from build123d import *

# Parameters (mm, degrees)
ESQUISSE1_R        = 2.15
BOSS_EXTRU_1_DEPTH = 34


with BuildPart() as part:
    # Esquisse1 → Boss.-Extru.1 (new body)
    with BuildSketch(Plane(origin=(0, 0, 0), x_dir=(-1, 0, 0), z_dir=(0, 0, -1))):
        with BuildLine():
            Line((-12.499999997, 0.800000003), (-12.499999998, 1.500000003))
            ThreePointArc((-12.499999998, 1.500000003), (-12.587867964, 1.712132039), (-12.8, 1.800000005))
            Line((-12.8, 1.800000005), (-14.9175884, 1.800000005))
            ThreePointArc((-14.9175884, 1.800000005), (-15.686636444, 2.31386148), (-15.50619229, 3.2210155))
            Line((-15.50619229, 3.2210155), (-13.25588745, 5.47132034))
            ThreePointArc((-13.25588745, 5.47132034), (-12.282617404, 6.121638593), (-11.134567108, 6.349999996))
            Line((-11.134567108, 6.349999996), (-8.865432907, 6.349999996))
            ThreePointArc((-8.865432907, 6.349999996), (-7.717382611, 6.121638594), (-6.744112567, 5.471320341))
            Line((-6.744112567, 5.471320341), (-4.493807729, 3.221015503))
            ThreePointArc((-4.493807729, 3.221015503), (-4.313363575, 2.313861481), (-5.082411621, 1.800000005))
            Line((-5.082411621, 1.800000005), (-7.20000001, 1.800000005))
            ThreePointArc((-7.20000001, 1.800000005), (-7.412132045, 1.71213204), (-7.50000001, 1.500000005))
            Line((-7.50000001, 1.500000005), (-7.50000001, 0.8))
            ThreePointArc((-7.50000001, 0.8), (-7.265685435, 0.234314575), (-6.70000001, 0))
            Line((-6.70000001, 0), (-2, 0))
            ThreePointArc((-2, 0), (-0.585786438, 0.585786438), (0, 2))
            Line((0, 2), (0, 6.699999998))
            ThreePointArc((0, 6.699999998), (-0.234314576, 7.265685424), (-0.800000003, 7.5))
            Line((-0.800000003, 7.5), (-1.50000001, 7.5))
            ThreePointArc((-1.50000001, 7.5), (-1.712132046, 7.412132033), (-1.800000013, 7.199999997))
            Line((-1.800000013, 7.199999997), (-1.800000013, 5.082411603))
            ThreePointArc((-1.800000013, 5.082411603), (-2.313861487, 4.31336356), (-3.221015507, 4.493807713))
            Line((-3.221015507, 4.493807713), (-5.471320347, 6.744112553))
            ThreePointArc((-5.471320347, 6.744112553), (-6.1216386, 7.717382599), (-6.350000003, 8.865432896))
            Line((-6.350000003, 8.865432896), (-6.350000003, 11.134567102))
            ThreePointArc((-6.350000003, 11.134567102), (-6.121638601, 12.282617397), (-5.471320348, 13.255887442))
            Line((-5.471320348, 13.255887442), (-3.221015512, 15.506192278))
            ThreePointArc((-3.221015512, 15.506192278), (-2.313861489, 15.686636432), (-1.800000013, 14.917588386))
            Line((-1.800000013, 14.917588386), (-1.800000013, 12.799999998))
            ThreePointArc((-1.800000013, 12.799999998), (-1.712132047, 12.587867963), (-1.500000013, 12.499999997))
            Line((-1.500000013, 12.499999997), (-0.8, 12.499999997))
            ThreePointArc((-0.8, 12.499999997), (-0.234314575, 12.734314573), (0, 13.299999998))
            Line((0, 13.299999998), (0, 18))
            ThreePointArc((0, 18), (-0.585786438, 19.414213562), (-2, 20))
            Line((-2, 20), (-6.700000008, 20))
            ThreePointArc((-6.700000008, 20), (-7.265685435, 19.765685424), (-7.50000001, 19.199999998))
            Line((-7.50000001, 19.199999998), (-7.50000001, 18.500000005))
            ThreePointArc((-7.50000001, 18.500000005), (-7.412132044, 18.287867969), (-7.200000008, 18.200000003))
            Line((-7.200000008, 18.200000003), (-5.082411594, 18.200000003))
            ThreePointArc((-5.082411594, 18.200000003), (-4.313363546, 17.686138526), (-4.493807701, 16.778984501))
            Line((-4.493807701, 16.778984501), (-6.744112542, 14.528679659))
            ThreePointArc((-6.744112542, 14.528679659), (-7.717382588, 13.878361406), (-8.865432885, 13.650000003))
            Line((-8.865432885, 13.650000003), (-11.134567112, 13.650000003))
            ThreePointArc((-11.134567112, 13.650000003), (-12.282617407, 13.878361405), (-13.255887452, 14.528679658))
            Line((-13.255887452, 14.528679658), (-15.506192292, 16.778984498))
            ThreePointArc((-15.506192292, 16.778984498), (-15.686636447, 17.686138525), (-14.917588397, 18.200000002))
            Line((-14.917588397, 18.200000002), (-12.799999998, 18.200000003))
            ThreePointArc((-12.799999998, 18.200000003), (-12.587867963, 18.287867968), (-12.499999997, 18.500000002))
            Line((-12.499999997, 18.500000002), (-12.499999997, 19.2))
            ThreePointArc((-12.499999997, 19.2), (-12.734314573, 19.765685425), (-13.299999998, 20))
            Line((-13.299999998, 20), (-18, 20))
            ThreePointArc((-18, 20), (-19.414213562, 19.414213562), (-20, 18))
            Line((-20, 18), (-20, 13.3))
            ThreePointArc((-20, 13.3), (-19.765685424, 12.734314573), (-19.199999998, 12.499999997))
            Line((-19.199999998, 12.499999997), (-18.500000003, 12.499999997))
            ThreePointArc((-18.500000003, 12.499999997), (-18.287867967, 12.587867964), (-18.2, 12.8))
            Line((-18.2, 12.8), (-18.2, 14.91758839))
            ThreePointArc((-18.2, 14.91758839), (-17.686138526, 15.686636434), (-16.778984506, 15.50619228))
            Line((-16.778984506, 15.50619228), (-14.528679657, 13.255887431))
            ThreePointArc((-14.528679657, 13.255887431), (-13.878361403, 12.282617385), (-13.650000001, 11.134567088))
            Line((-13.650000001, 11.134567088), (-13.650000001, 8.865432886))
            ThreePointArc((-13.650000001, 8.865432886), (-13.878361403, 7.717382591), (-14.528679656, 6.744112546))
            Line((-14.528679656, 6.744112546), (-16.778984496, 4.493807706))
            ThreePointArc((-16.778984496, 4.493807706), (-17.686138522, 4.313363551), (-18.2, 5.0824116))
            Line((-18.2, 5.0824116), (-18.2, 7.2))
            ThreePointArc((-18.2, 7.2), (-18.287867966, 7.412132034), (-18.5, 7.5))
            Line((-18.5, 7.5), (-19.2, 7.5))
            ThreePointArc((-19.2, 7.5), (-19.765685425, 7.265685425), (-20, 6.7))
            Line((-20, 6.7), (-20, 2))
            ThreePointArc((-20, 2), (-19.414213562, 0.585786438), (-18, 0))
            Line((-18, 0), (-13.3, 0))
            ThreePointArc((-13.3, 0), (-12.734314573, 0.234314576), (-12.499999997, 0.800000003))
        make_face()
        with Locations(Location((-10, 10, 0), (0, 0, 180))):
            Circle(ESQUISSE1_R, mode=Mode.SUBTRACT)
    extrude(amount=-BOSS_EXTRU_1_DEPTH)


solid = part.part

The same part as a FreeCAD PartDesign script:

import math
import FreeCAD as App
import Part
import Sketcher
Q = App.Units.Quantity

doc = App.newDocument("Part")
params = doc.addObject("Spreadsheet::Sheet", "Params")
for row, (alias, value) in enumerate([
    ("sketch1_radius", "3 mm"),
    ("sketch1_radius2", "2 mm"),
    ("sketch1_diameter", "4.3 mm"),
    ("sketch1_radius3", "0.3 mm"),
    ("sketch1_radius4", "0.8 mm"),
    ("pad1_length", "34 mm"),
], start=1):
    params.set(f"A{row}", alias)
    params.set(f"B{row}", "=" + value)
    params.setAlias(f"B{row}", alias)

body = doc.addObject("PartDesign::Body", "Body")

# Sketch on XY plane
sketch1 = body.newObject("Sketcher::SketchObject", "Sketch")
sketch1.AttachmentSupport = (doc.getObject("XY_Plane"), [""])
sketch1.MapMode = "FlatFace"
sketch1.addGeometry([
    Part.LineSegment(App.Vector(12.5, 0.8, 0), App.Vector(12.5, 1.5, 0)),  # 0
    Part.ArcOfCircle(Part.Circle(App.Vector(12.8, 1.5, 0), App.Vector(0, 0, 1), 0.3), math.radians(90), math.radians(180)),  # 1
    Part.LineSegment(App.Vector(12.8, 1.8, 0), App.Vector(14.92, 1.8, 0)),  # 2
    Part.ArcOfCircle(Part.Circle(App.Vector(14.92, 2.63, 0), App.Vector(0, 0, 1), 0.83), math.radians(-90), math.radians(45)),  # 3
    Part.LineSegment(App.Vector(15.51, 3.22, 0), App.Vector(13.26, 5.47, 0)),  # 4
    Part.ArcOfCircle(Part.Circle(App.Vector(11.13, 3.35, 0), App.Vector(0, 0, 1), 3), math.radians(45), math.radians(90)),  # 5
    Part.LineSegment(App.Vector(11.13, 6.35, 0), App.Vector(8.87, 6.35, 0)),  # 6
    Part.ArcOfCircle(Part.Circle(App.Vector(8.87, 3.35, 0), App.Vector(0, 0, 1), 3), math.radians(90), math.radians(135)),  # 7
    Part.LineSegment(App.Vector(6.74, 5.47, 0), App.Vector(4.49, 3.22, 0)),  # 8
    Part.ArcOfCircle(Part.Circle(App.Vector(5.08, 2.63, 0), App.Vector(0, 0, 1), 0.83), math.radians(135), math.radians(270)),  # 9
    Part.LineSegment(App.Vector(5.08, 1.8, 0), App.Vector(7.2, 1.8, 0)),  # 10
    Part.ArcOfCircle(Part.Circle(App.Vector(7.2, 1.5, 0), App.Vector(0, 0, 1), 0.3), math.radians(0), math.radians(90)),  # 11
    Part.LineSegment(App.Vector(7.5, 1.5, 0), App.Vector(7.5, 0.8, 0)),  # 12
    Part.ArcOfCircle(Part.Circle(App.Vector(6.7, 0.8, 0), App.Vector(0, 0, 1), 0.8), math.radians(-90), math.radians(0)),  # 13
    Part.LineSegment(App.Vector(6.7, 0, 0), App.Vector(2, 0, 0)),  # 14
    Part.ArcOfCircle(Part.Circle(App.Vector(2, 2, 0), App.Vector(0, 0, 1), 2), math.radians(-180), math.radians(-90)),  # 15
    Part.LineSegment(App.Vector(0, 2, 0), App.Vector(0, 6.7, 0)),  # 16
    Part.ArcOfCircle(Part.Circle(App.Vector(0.8, 6.7, 0), App.Vector(0, 0, 1), 0.8), math.radians(90), math.radians(180)),  # 17
    Part.LineSegment(App.Vector(0.8, 7.5, 0), App.Vector(1.5, 7.5, 0)),  # 18
    Part.ArcOfCircle(Part.Circle(App.Vector(1.5, 7.2, 0), App.Vector(0, 0, 1), 0.3), math.radians(0), math.radians(90)),  # 19
    Part.LineSegment(App.Vector(1.8, 7.2, 0), App.Vector(1.8, 5.08, 0)),  # 20
    Part.ArcOfCircle(Part.Circle(App.Vector(2.63, 5.08, 0), App.Vector(0, 0, 1), 0.83), math.radians(-180), math.radians(-45)),  # 21
    Part.LineSegment(App.Vector(3.22, 4.49, 0), App.Vector(5.47, 6.74, 0)),  # 22
    Part.ArcOfCircle(Part.Circle(App.Vector(3.35, 8.87, 0), App.Vector(0, 0, 1), 3), math.radians(-45), math.radians(0)),  # 23
    Part.LineSegment(App.Vector(6.35, 8.87, 0), App.Vector(6.35, 11.13, 0)),  # 24
    Part.ArcOfCircle(Part.Circle(App.Vector(3.35, 11.13, 0), App.Vector(0, 0, 1), 3), math.radians(0), math.radians(45)),  # 25
    Part.LineSegment(App.Vector(5.47, 13.26, 0), App.Vector(3.22, 15.51, 0)),  # 26
    Part.ArcOfCircle(Part.Circle(App.Vector(2.63, 14.92, 0), App.Vector(0, 0, 1), 0.83), math.radians(45), math.radians(180)),  # 27
    Part.LineSegment(App.Vector(1.8, 14.92, 0), App.Vector(1.8, 12.8, 0)),  # 28
    Part.ArcOfCircle(Part.Circle(App.Vector(1.5, 12.8, 0), App.Vector(0, 0, 1), 0.3), math.radians(-90), math.radians(0)),  # 29
    Part.LineSegment(App.Vector(1.5, 12.5, 0), App.Vector(0.8, 12.5, 0)),  # 30
    Part.ArcOfCircle(Part.Circle(App.Vector(0.8, 13.3, 0), App.Vector(0, 0, 1), 0.8), math.radians(-180), math.radians(-90)),  # 31
    Part.LineSegment(App.Vector(0, 13.3, 0), App.Vector(0, 18, 0)),  # 32
    Part.ArcOfCircle(Part.Circle(App.Vector(2, 18, 0), App.Vector(0, 0, 1), 2), math.radians(90), math.radians(180)),  # 33
    Part.LineSegment(App.Vector(2, 20, 0), App.Vector(6.7, 20, 0)),  # 34
    Part.ArcOfCircle(Part.Circle(App.Vector(6.7, 19.2, 0), App.Vector(0, 0, 1), 0.8), math.radians(0), math.radians(90)),  # 35
    Part.LineSegment(App.Vector(7.5, 19.2, 0), App.Vector(7.5, 18.5, 0)),  # 36
    Part.ArcOfCircle(Part.Circle(App.Vector(7.2, 18.5, 0), App.Vector(0, 0, 1), 0.3), math.radians(-90), math.radians(0)),  # 37
    Part.LineSegment(App.Vector(7.2, 18.2, 0), App.Vector(5.08, 18.2, 0)),  # 38
    Part.ArcOfCircle(Part.Circle(App.Vector(5.08, 17.37, 0), App.Vector(0, 0, 1), 0.83), math.radians(90), math.radians(225)),  # 39
    Part.LineSegment(App.Vector(4.49, 16.78, 0), App.Vector(6.74, 14.53, 0)),  # 40
    Part.ArcOfCircle(Part.Circle(App.Vector(8.87, 16.65, 0), App.Vector(0, 0, 1), 3), math.radians(-135), math.radians(-90)),  # 41
    Part.LineSegment(App.Vector(8.87, 13.65, 0), App.Vector(11.13, 13.65, 0)),  # 42
    Part.ArcOfCircle(Part.Circle(App.Vector(11.13, 16.65, 0), App.Vector(0, 0, 1), 3), math.radians(-90), math.radians(-45)),  # 43
    Part.LineSegment(App.Vector(13.26, 14.53, 0), App.Vector(15.51, 16.78, 0)),  # 44
    Part.ArcOfCircle(Part.Circle(App.Vector(14.92, 17.37, 0), App.Vector(0, 0, 1), 0.83), math.radians(-45), math.radians(90)),  # 45
    Part.LineSegment(App.Vector(14.92, 18.2, 0), App.Vector(12.8, 18.2, 0)),  # 46
    Part.ArcOfCircle(Part.Circle(App.Vector(12.8, 18.5, 0), App.Vector(0, 0, 1), 0.3), math.radians(-180), math.radians(-90)),  # 47
    Part.LineSegment(App.Vector(12.5, 18.5, 0), App.Vector(12.5, 19.2, 0)),  # 48
    Part.ArcOfCircle(Part.Circle(App.Vector(13.3, 19.2, 0), App.Vector(0, 0, 1), 0.8), math.radians(90), math.radians(180)),  # 49
    Part.LineSegment(App.Vector(13.3, 20, 0), App.Vector(18, 20, 0)),  # 50
    Part.ArcOfCircle(Part.Circle(App.Vector(18, 18, 0), App.Vector(0, 0, 1), 2), math.radians(0), math.radians(90)),  # 51
    Part.LineSegment(App.Vector(20, 18, 0), App.Vector(20, 13.3, 0)),  # 52
    Part.ArcOfCircle(Part.Circle(App.Vector(19.2, 13.3, 0), App.Vector(0, 0, 1), 0.8), math.radians(-90), math.radians(0)),  # 53
    Part.LineSegment(App.Vector(19.2, 12.5, 0), App.Vector(18.5, 12.5, 0)),  # 54
    Part.ArcOfCircle(Part.Circle(App.Vector(18.5, 12.8, 0), App.Vector(0, 0, 1), 0.3), math.radians(-180), math.radians(-90)),  # 55
    Part.LineSegment(App.Vector(18.2, 12.8, 0), App.Vector(18.2, 14.92, 0)),  # 56
    Part.ArcOfCircle(Part.Circle(App.Vector(17.37, 14.92, 0), App.Vector(0, 0, 1), 0.83), math.radians(0), math.radians(135)),  # 57
    Part.LineSegment(App.Vector(16.78, 15.51, 0), App.Vector(14.53, 13.26, 0)),  # 58
    Part.ArcOfCircle(Part.Circle(App.Vector(16.65, 11.13, 0), App.Vector(0, 0, 1), 3), math.radians(135), math.radians(180)),  # 59
    Part.LineSegment(App.Vector(13.65, 11.13, 0), App.Vector(13.65, 8.87, 0)),  # 60
    Part.ArcOfCircle(Part.Circle(App.Vector(16.65, 8.87, 0), App.Vector(0, 0, 1), 3), math.radians(180), math.radians(225)),  # 61
    Part.LineSegment(App.Vector(14.53, 6.74, 0), App.Vector(16.78, 4.49, 0)),  # 62
    Part.ArcOfCircle(Part.Circle(App.Vector(17.37, 5.08, 0), App.Vector(0, 0, 1), 0.83), math.radians(-135), math.radians(0)),  # 63
    Part.LineSegment(App.Vector(18.2, 5.08, 0), App.Vector(18.2, 7.2, 0)),  # 64
    Part.ArcOfCircle(Part.Circle(App.Vector(18.5, 7.2, 0), App.Vector(0, 0, 1), 0.3), math.radians(90), math.radians(180)),  # 65
    Part.LineSegment(App.Vector(18.5, 7.5, 0), App.Vector(19.2, 7.5, 0)),  # 66
    Part.ArcOfCircle(Part.Circle(App.Vector(19.2, 6.7, 0), App.Vector(0, 0, 1), 0.8), math.radians(0), math.radians(90)),  # 67
    Part.LineSegment(App.Vector(20, 6.7, 0), App.Vector(20, 2, 0)),  # 68
    Part.ArcOfCircle(Part.Circle(App.Vector(18, 2, 0), App.Vector(0, 0, 1), 2), math.radians(-90), math.radians(0)),  # 69
    Part.LineSegment(App.Vector(18, 0, 0), App.Vector(13.3, 0, 0)),  # 70
    Part.ArcOfCircle(Part.Circle(App.Vector(13.3, 0.8, 0), App.Vector(0, 0, 1), 0.8), math.radians(180), math.radians(270)),  # 71
    Part.Circle(App.Vector(10, 10, 0), App.Vector(0, 0, 1), 2.15),  # 72
], False)
sketch1.addConstraint([
    Sketcher.Constraint("Tangent", 0, 2, 1, 2),
    Sketcher.Constraint("Tangent", 1, 1, 2, 1),
    Sketcher.Constraint("Tangent", 2, 2, 3, 1),
    Sketcher.Constraint("Tangent", 3, 2, 4, 1),
    Sketcher.Constraint("Tangent", 4, 2, 5, 1),
    Sketcher.Constraint("Tangent", 5, 2, 6, 1),
    Sketcher.Constraint("Tangent", 6, 2, 7, 1),
    Sketcher.Constraint("Tangent", 7, 2, 8, 1),
    Sketcher.Constraint("Tangent", 8, 2, 9, 1),
    Sketcher.Constraint("Tangent", 9, 2, 10, 1),
    Sketcher.Constraint("Tangent", 10, 2, 11, 2),
    Sketcher.Constraint("Tangent", 11, 1, 12, 1),
    Sketcher.Constraint("Tangent", 12, 2, 13, 2),
    Sketcher.Constraint("Tangent", 13, 1, 14, 1),
    Sketcher.Constraint("Tangent", 14, 2, 15, 2),
    Sketcher.Constraint("Tangent", 15, 1, 16, 1),
    Sketcher.Constraint("Tangent", 16, 2, 17, 2),
    Sketcher.Constraint("Tangent", 17, 1, 18, 1),
    Sketcher.Constraint("Tangent", 18, 2, 19, 2),
    Sketcher.Constraint("Tangent", 19, 1, 20, 1),
    Sketcher.Constraint("Tangent", 20, 2, 21, 1),
    Sketcher.Constraint("Tangent", 21, 2, 22, 1),
    Sketcher.Constraint("Tangent", 22, 2, 23, 1),
    Sketcher.Constraint("Tangent", 23, 2, 24, 1),
    Sketcher.Constraint("Tangent", 24, 2, 25, 1),
    Sketcher.Constraint("Tangent", 25, 2, 26, 1),
    Sketcher.Constraint("Tangent", 26, 2, 27, 1),
    Sketcher.Constraint("Tangent", 27, 2, 28, 1),
    Sketcher.Constraint("Tangent", 28, 2, 29, 2),
    Sketcher.Constraint("Tangent", 29, 1, 30, 1),
    Sketcher.Constraint("Tangent", 30, 2, 31, 2),
    Sketcher.Constraint("Tangent", 31, 1, 32, 1),
    Sketcher.Constraint("Tangent", 32, 2, 33, 2),
    Sketcher.Constraint("Tangent", 33, 1, 34, 1),
    Sketcher.Constraint("Tangent", 34, 2, 35, 2),
    Sketcher.Constraint("Tangent", 35, 1, 36, 1),
    Sketcher.Constraint("Tangent", 36, 2, 37, 2),
    Sketcher.Constraint("Tangent", 37, 1, 38, 1),
    Sketcher.Constraint("Tangent", 38, 2, 39, 1),
    Sketcher.Constraint("Tangent", 39, 2, 40, 1),
    Sketcher.Constraint("Tangent", 40, 2, 41, 1),
    Sketcher.Constraint("Tangent", 41, 2, 42, 1),
    Sketcher.Constraint("Tangent", 42, 2, 43, 1),
    Sketcher.Constraint("Tangent", 43, 2, 44, 1),
    Sketcher.Constraint("Tangent", 44, 2, 45, 1),
    Sketcher.Constraint("Tangent", 45, 2, 46, 1),
    Sketcher.Constraint("Tangent", 46, 2, 47, 2),
    Sketcher.Constraint("Tangent", 47, 1, 48, 1),
    Sketcher.Constraint("Tangent", 48, 2, 49, 2),
    Sketcher.Constraint("Tangent", 49, 1, 50, 1),
    Sketcher.Constraint("Tangent", 50, 2, 51, 2),
    Sketcher.Constraint("Tangent", 51, 1, 52, 1),
    Sketcher.Constraint("Tangent", 52, 2, 53, 2),
    Sketcher.Constraint("Tangent", 53, 1, 54, 1),
    Sketcher.Constraint("Tangent", 54, 2, 55, 2),
    Sketcher.Constraint("Tangent", 55, 1, 56, 1),
    Sketcher.Constraint("Tangent", 56, 2, 57, 1),
    Sketcher.Constraint("Tangent", 57, 2, 58, 1),
    Sketcher.Constraint("Tangent", 58, 2, 59, 1),
    Sketcher.Constraint("Tangent", 59, 2, 60, 1),
    Sketcher.Constraint("Tangent", 60, 2, 61, 1),
    Sketcher.Constraint("Tangent", 61, 2, 62, 1),
    Sketcher.Constraint("Tangent", 62, 2, 63, 1),
    Sketcher.Constraint("Tangent", 63, 2, 64, 1),
    Sketcher.Constraint("Tangent", 64, 2, 65, 2),
    Sketcher.Constraint("Tangent", 65, 1, 66, 1),
    Sketcher.Constraint("Tangent", 66, 2, 67, 2),
    Sketcher.Constraint("Tangent", 67, 1, 68, 1),
    Sketcher.Constraint("Tangent", 68, 2, 69, 2),
    Sketcher.Constraint("Tangent", 69, 1, 70, 1),
    Sketcher.Constraint("Tangent", 70, 2, 71, 2),
    Sketcher.Constraint("Tangent", 71, 1, 0, 1),
    Sketcher.Constraint("Vertical", 0),
    Sketcher.Constraint("Horizontal", 2),
    Sketcher.Constraint("Horizontal", 6),
    Sketcher.Constraint("Horizontal", 10),
    Sketcher.Constraint("Vertical", 12),
    Sketcher.Constraint("Horizontal", 14),
    Sketcher.Constraint("Vertical", 16),
    Sketcher.Constraint("Horizontal", 18),
    Sketcher.Constraint("Vertical", 20),
    Sketcher.Constraint("Vertical", 24),
    Sketcher.Constraint("Vertical", 28),
    Sketcher.Constraint("Horizontal", 30),
    Sketcher.Constraint("Vertical", 32),
    Sketcher.Constraint("Horizontal", 34),
    Sketcher.Constraint("Vertical", 36),
    Sketcher.Constraint("Horizontal", 38),
    Sketcher.Constraint("Horizontal", 42),
    Sketcher.Constraint("Horizontal", 46),
    Sketcher.Constraint("Vertical", 48),
    Sketcher.Constraint("Horizontal", 50),
    Sketcher.Constraint("Vertical", 52),
    Sketcher.Constraint("Horizontal", 54),
    Sketcher.Constraint("Vertical", 56),
    Sketcher.Constraint("Vertical", 60),
    Sketcher.Constraint("Vertical", 64),
    Sketcher.Constraint("Horizontal", 66),
    Sketcher.Constraint("Vertical", 68),
    Sketcher.Constraint("Horizontal", 70),
    Sketcher.Constraint("Equal", 5, 7),
    Sketcher.Constraint("Equal", 3, 9),
    Sketcher.Constraint("Equal", 1, 11),
    Sketcher.Constraint("Equal", 13, 17),
    Sketcher.Constraint("Equal", 11, 19),
    Sketcher.Constraint("Equal", 9, 21),
    Sketcher.Constraint("Equal", 7, 23),
    Sketcher.Constraint("Equal", 23, 25),
    Sketcher.Constraint("Equal", 21, 27),
    Sketcher.Constraint("Equal", 19, 29),
    Sketcher.Constraint("Equal", 17, 31),
    Sketcher.Constraint("Equal", 15, 33),
    Sketcher.Constraint("Equal", 31, 35),
    Sketcher.Constraint("Equal", 29, 37),
    Sketcher.Constraint("Equal", 27, 39),
    Sketcher.Constraint("Equal", 25, 41),
    Sketcher.Constraint("Equal", 41, 43),
    Sketcher.Constraint("Equal", 39, 45),
    Sketcher.Constraint("Equal", 37, 47),
    Sketcher.Constraint("Equal", 35, 49),
    Sketcher.Constraint("Equal", 33, 51),
    Sketcher.Constraint("Equal", 49, 53),
    Sketcher.Constraint("Equal", 47, 55),
    Sketcher.Constraint("Equal", 45, 57),
    Sketcher.Constraint("Equal", 43, 59),
    Sketcher.Constraint("Equal", 59, 61),
    Sketcher.Constraint("Equal", 57, 63),
    Sketcher.Constraint("Equal", 55, 65),
    Sketcher.Constraint("Equal", 53, 67),
    Sketcher.Constraint("Equal", 51, 69),
    Sketcher.Constraint("Equal", 67, 71),
    Sketcher.Constraint("PointOnObject", 13, 1, -1),
    Sketcher.Constraint("PointOnObject", 15, 1, -2),
    Sketcher.Constraint("PointOnObject", 31, 1, -2),
    Sketcher.Constraint("PointOnObject", 69, 1, -1),
    Sketcher.Constraint("Perpendicular", 4, 8),
    Sketcher.Constraint("Parallel", 8, 22),
    Sketcher.Constraint("Perpendicular", 22, 26),
    Sketcher.Constraint("Parallel", 26, 40),
    Sketcher.Constraint("Perpendicular", 40, 44),
    Sketcher.Constraint("Parallel", 44, 58),
    Sketcher.Constraint("Perpendicular", 58, 62),
    Sketcher.Constraint("Horizontal", 3, 3, 9, 3),
    Sketcher.Constraint("Horizontal", 39, 3, 45, 3),
    Sketcher.Constraint("Horizontal", 35, 3, 49, 3),
    Sketcher.Constraint("Horizontal", 31, 3, 53, 3),
    Sketcher.Constraint("Horizontal", 27, 3, 57, 3),
    Sketcher.Constraint("Horizontal", 25, 3, 59, 3),
    Sketcher.Constraint("Horizontal", 23, 3, 61, 3),
    Sketcher.Constraint("Horizontal", 21, 3, 63, 3),
    Sketcher.Constraint("Horizontal", 19, 3, 65, 3),
    Sketcher.Constraint("Horizontal", 4, 2, 7, 2),
    Sketcher.Constraint("Vertical", 21, 3, 27, 3),
    Sketcher.Constraint("Vertical", 13, 3, 35, 3),
    Sketcher.Constraint("Vertical", 9, 3, 39, 3),
    Sketcher.Constraint("Vertical", 7, 3, 41, 3),
    Sketcher.Constraint("Vertical", 5, 3, 43, 3),
    Sketcher.Constraint("Vertical", 1, 3, 47, 3),
    Sketcher.Constraint("Vertical", 53, 3, 67, 3),
    Sketcher.Constraint("Equal", 2, 10),
    Sketcher.Constraint("Equal", 34, 50),
    Sketcher.Constraint("Equal", 30, 54),
    Sketcher.Constraint("Equal", 66, 0),
    Sketcher.Constraint("Equal", 70, 16),
    Sketcher.Constraint("Equal", 46, 20),
    Sketcher.Constraint("Equal", 42, 24),
    Sketcher.Constraint("Equal", 20, 28),
    Sketcher.Constraint("Equal", 16, 32),
    Sketcher.Constraint("Equal", 12, 36),
    Sketcher.Constraint("Equal", 8, 22),
    Sketcher.Constraint("Radius", 5, Q("3 mm")),
    Sketcher.Constraint("Radius", 15, Q("2 mm")),
    Sketcher.Constraint("Diameter", 72, Q("4.3 mm")),
    Sketcher.Constraint("Radius", 1, Q("0.3 mm")),
    Sketcher.Constraint("Radius", 13, Q("0.8 mm")),
    Sketcher.Constraint("DistanceX", 14, 2, 14, 1, Q("4.7 mm")),
    Sketcher.Constraint("DistanceX", 18, 1, 18, 2, Q("0.7 mm")),
    Sketcher.Constraint("DistanceY", -1, 1, 33, 3, Q("18 mm")),
    Sketcher.Constraint("DistanceX", -1, 1, 72, 3, Q("10 mm")),
    Sketcher.Constraint("DistanceY", -1, 1, 72, 3, Q("10 mm")),
    Sketcher.Constraint("DistanceY", -1, 1, 5, 3, Q("3.35 mm")),
    Sketcher.Constraint("Radius", 3, Q("0.832412 mm")),
    Sketcher.Constraint("DistanceX", 2, 1, 2, 2, Q("2.117588 mm")),
])
sketch1.setExpression("Constraints[170]", "Params.sketch1_radius")
sketch1.setExpression("Constraints[171]", "Params.sketch1_radius2")
sketch1.setExpression("Constraints[172]", "Params.sketch1_diameter")
sketch1.setExpression("Constraints[173]", "Params.sketch1_radius3")
sketch1.setExpression("Constraints[174]", "Params.sketch1_radius4")
pad1 = body.newObject("PartDesign::Pad", "Pad")
pad1.Profile = sketch1
pad1.setExpression("Length", "Params.pad1_length")

doc.recompute()
